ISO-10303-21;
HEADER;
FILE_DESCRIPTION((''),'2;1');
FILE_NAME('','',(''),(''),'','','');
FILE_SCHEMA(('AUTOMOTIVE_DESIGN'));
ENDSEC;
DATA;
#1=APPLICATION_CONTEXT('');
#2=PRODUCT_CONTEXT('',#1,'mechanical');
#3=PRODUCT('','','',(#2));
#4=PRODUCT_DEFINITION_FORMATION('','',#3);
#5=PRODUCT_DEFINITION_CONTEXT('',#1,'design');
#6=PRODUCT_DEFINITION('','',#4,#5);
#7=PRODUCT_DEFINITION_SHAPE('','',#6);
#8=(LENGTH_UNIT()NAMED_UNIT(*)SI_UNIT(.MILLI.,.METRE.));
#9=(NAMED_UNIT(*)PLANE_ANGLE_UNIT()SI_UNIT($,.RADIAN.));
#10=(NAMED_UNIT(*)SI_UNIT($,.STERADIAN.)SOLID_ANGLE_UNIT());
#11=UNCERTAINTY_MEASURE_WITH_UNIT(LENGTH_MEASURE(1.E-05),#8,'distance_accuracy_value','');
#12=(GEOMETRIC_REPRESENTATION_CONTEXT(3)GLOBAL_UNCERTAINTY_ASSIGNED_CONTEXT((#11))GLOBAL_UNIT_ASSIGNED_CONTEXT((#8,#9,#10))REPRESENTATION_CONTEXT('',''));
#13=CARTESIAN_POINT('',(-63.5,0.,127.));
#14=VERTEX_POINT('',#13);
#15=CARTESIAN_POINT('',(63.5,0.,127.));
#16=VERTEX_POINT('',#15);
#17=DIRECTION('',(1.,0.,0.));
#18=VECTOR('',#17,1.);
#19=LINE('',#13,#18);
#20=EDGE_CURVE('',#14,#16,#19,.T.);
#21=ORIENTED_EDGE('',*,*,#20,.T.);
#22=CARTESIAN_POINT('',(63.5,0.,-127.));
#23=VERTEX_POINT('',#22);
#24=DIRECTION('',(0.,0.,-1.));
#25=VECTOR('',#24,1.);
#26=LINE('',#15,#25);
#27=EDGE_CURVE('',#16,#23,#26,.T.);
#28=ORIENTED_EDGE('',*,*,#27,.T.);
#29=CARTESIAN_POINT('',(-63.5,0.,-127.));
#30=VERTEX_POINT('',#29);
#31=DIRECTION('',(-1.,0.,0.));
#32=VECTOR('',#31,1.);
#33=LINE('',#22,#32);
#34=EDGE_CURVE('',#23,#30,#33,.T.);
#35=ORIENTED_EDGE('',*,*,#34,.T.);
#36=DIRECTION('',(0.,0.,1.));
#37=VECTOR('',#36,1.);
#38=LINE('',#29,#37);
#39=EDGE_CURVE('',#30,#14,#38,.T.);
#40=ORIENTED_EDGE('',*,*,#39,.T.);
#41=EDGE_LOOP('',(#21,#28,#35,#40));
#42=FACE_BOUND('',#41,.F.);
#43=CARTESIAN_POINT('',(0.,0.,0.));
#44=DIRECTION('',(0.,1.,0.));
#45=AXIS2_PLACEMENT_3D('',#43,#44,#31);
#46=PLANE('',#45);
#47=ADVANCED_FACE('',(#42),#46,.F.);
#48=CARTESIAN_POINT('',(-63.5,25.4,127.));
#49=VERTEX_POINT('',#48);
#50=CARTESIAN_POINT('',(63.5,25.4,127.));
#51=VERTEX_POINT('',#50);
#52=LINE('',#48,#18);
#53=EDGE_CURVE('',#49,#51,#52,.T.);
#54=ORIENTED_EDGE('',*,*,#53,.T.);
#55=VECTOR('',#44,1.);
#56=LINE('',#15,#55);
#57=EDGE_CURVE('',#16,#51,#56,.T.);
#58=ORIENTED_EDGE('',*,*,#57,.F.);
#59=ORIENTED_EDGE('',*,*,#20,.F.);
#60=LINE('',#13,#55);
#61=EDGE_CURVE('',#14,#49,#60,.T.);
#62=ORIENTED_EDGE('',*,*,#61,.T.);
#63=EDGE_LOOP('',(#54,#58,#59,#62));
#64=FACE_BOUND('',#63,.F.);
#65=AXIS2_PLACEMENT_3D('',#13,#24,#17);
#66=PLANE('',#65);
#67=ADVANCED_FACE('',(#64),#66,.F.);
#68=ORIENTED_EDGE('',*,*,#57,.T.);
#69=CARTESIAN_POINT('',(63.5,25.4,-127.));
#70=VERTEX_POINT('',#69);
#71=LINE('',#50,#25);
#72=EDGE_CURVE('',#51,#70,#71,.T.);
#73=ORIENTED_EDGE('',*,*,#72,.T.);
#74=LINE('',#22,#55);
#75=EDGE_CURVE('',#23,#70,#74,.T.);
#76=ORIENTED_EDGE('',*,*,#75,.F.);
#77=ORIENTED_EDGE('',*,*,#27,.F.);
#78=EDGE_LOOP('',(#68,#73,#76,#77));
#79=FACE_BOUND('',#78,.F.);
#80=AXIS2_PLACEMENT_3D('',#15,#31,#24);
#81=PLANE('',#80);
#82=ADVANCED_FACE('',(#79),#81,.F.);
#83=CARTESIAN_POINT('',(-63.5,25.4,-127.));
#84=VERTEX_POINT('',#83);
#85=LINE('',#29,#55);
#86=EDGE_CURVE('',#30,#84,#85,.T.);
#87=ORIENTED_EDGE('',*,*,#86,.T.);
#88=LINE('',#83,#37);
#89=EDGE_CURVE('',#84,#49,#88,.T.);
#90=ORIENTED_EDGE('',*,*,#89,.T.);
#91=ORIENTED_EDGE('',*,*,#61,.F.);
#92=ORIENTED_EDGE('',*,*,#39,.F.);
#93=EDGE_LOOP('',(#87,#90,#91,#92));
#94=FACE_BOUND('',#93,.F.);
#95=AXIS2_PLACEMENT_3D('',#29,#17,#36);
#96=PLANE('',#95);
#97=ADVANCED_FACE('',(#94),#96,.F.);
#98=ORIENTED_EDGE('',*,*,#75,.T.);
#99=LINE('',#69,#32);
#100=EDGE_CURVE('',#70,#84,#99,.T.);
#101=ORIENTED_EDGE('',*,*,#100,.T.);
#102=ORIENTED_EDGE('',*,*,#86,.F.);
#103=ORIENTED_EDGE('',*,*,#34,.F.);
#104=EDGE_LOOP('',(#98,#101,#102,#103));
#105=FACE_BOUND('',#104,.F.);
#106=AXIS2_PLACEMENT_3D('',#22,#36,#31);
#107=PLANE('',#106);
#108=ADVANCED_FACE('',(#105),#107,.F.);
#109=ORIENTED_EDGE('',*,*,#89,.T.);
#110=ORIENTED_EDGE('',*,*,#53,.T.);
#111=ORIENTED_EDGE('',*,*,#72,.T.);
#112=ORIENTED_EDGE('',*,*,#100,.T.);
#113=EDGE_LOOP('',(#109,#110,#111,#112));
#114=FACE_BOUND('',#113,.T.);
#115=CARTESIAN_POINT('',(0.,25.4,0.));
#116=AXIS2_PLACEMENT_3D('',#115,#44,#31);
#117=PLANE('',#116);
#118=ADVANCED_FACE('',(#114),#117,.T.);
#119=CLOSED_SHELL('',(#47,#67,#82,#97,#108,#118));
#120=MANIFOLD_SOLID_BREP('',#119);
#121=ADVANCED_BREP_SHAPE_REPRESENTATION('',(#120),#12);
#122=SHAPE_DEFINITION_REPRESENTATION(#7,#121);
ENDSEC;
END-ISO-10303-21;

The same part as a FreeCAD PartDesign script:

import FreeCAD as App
import Part
import Sketcher

V = App.Vector
Q = App.Units.Quantity


def add_polygon(sketch, points):
    """Adds a closed chain of lines whose ends are joined by coincident constraints."""
    first, n = sketch.GeometryCount, len(points)
    for a, b in zip(points, points[1:] + points[:1]):
        sketch.addGeometry(Part.LineSegment(App.Vector(*a, 0), App.Vector(*b, 0)), False)
    for i in range(n):
        sketch.addConstraint(Sketcher.Constraint("Coincident", first + i, 2, first + (i + 1) % n, 1))

doc = App.newDocument("Part")
body = doc.addObject("PartDesign::Body", "Body")

sketch1 = body.newObject("Sketcher::SketchObject", "Sketch")
sketch1.AttachmentSupport = (doc.getObject("XZ_Plane"), [""])
sketch1.MapMode = "FlatFace"
add_polygon(sketch1, [(-64, 127), (64, 127), (64, -127), (-64, -127)])
sketch1.addConstraint(Sketcher.Constraint("Horizontal", 0))
sketch1.addConstraint(Sketcher.Constraint("Vertical", 1))
sketch1.addConstraint(Sketcher.Constraint("Horizontal", 2))
sketch1.addConstraint(Sketcher.Constraint("Vertical", 3))
sketch1.addConstraint(Sketcher.Constraint("Symmetric", 0, 2, 2, 2, -1, 1))
sketch1.addConstraint(Sketcher.Constraint("DistanceX", 0, 1, 0, 2, Q("5 in")))
sketch1.addConstraint(Sketcher.Constraint("DistanceY", 1, 2, 1, 1, Q("10 in")))
pad1 = body.newObject("PartDesign::Pad", "Pad")
pad1.Profile = sketch1
pad1.Length = Q("1 in")
pad1.Reversed = True

doc.recompute()
